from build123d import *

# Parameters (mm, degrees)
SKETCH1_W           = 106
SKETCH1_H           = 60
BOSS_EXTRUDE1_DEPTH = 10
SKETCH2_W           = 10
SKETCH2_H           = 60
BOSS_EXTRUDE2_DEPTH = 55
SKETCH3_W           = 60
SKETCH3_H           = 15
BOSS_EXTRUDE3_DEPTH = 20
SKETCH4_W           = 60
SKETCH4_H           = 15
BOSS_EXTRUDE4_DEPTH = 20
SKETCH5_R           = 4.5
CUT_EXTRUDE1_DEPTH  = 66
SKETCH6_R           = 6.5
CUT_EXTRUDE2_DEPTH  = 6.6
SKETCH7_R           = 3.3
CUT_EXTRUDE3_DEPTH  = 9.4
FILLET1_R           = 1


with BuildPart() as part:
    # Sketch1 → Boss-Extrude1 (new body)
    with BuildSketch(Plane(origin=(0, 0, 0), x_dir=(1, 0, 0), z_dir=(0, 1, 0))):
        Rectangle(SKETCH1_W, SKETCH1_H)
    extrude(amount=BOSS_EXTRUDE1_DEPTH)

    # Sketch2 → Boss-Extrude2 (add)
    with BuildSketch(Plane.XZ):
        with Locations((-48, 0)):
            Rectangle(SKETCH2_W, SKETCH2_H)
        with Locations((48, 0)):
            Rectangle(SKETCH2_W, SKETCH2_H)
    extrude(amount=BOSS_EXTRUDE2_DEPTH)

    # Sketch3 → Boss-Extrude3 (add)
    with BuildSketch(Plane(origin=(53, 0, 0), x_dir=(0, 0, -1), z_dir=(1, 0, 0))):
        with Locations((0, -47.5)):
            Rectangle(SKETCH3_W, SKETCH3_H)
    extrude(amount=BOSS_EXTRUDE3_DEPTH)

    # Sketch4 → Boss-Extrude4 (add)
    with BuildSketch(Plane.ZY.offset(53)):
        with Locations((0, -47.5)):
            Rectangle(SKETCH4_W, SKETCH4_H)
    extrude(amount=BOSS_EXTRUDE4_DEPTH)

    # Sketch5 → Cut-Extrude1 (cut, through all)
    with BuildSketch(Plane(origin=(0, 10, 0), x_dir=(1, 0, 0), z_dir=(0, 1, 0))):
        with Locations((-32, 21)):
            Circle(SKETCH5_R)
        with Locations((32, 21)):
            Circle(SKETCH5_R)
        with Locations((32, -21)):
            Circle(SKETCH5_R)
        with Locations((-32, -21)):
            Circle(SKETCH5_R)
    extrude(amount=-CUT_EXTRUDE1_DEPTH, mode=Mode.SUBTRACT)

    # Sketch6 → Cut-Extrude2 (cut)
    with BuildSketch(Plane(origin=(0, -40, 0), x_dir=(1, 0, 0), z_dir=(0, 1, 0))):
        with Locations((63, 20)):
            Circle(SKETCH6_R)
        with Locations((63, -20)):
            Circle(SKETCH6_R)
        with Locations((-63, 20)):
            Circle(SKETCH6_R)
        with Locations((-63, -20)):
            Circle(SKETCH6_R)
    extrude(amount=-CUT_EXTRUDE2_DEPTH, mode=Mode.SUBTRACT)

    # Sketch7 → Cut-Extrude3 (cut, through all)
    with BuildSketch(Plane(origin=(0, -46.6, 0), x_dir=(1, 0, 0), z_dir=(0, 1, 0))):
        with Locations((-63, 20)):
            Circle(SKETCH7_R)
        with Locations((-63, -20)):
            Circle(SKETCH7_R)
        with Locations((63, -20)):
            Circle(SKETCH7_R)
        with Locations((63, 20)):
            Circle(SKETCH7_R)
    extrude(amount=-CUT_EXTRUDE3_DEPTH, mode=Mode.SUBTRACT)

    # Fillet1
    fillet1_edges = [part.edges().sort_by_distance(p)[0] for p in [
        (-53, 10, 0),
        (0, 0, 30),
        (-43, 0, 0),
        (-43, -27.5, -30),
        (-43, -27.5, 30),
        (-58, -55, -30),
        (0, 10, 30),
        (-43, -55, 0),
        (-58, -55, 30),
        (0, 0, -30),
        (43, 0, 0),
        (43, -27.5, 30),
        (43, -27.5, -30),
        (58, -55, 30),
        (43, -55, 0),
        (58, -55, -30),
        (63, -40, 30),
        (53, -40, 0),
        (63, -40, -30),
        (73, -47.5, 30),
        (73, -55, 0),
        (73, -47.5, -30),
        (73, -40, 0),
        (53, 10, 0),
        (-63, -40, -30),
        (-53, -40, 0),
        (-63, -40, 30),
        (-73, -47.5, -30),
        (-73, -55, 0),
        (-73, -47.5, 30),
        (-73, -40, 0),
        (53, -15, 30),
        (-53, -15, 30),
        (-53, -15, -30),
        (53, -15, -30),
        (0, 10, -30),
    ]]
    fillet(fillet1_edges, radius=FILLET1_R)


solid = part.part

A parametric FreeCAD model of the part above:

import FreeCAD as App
import Part
import Sketcher

V = App.Vector


def edges_at(feature, points):
    """Names of the edges that pass closest to the given points."""
    edges = feature.Shape.Edges
    near = lambda p: min(range(len(edges)), key=lambda i: edges[i].distToShape(Part.Vertex(*p))[0])
    return sorted({f"Edge{near(p) + 1}" for p in points})

doc = App.newDocument("Part")
body = doc.addObject("PartDesign::Body", "Body")

# Sketch on XZ plane
sketch1 = body.newObject("Sketcher::SketchObject", "Sketch")
sketch1.AttachmentSupport = (doc.getObject("XZ_Plane"), [""])
sketch1.MapMode = "FlatFace"
sketch1.addGeometry(Part.LineSegment(V(-53, -30, 0), V(-53, 30, 0)), False)
sketch1.addGeometry(Part.LineSegment(V(-53, 30, 0), V(53, 30, 0)), False)
sketch1.addGeometry(Part.LineSegment(V(53, 30, 0), V(53, -30, 0)), False)
sketch1.addGeometry(Part.LineSegment(V(53, -30, 0), V(-53, -30, 0)), False)
sketch1.addConstraint(Sketcher.Constraint("Coincident", 0, 2, 1, 1))
sketch1.addConstraint(Sketcher.Constraint("Coincident", 1, 2, 2, 1))
sketch1.addConstraint(Sketcher.Constraint("Coincident", 2, 2, 3, 1))
sketch1.addConstraint(Sketcher.Constraint("Coincident", 3, 2, 0, 1))
sketch1.addConstraint(Sketcher.Constraint("Vertical", 0))
sketch1.addConstraint(Sketcher.Constraint("Horizontal", 1))
sketch1.addConstraint(Sketcher.Constraint("Vertical", 2))
sketch1.addConstraint(Sketcher.Constraint("Horizontal", 3))
sketch1.addConstraint(Sketcher.Constraint("Symmetric", 0, 2, 2, 2, -1, 1))
sketch1.addConstraint(Sketcher.Constraint("DistanceX", 1, 1, 1, 2, 106.0))
sketch1.addConstraint(Sketcher.Constraint("DistanceY", 0, 1, 0, 2, 60.0))
pad1 = body.newObject("PartDesign::Pad", "Pad")
pad1.Profile = sketch1
pad1.Length = 10
pad1.Reversed = True

# Sketch on XZ plane
sketch2 = body.newObject("Sketcher::SketchObject", "Sketch001")
sketch2.AttachmentSupport = (doc.getObject("XZ_Plane"), [""])
sketch2.MapMode = "FlatFace"
sketch2.addGeometry(Part.LineSegment(V(-53, 30, 0), V(-53, -30, 0)), False)
sketch2.addGeometry(Part.LineSegment(V(-53, -30, 0), V(-43, -30, 0)), False)
sketch2.addGeometry(Part.LineSegment(V(-43, -30, 0), V(-43, 30, 0)), False)
sketch2.addGeometry(Part.LineSegment(V(-43, 30, 0), V(-53, 30, 0)), False)
sketch2.addGeometry(Part.LineSegment(V(43, 30, 0), V(43, -30, 0)), False)
sketch2.addGeometry(Part.LineSegment(V(43, -30, 0), V(53, -30, 0)), False)
sketch2.addGeometry(Part.LineSegment(V(53, -30, 0), V(53, 30, 0)), False)
sketch2.addGeometry(Part.LineSegment(V(53, 30, 0), V(43, 30, 0)), False)
sketch2.addConstraint(Sketcher.Constraint("Coincident", 0, 2, 1, 1))
sketch2.addConstraint(Sketcher.Constraint("Coincident", 1, 2, 2, 1))
sketch2.addConstraint(Sketcher.Constraint("Coincident", 2, 2, 3, 1))
sketch2.addConstraint(Sketcher.Constraint("Coincident", 3, 2, 0, 1))
sketch2.addConstraint(Sketcher.Constraint("Coincident", 4, 2, 5, 1))
sketch2.addConstraint(Sketcher.Constraint("Coincident", 5, 2, 6, 1))
sketch2.addConstraint(Sketcher.Constraint("Coincident", 6, 2, 7, 1))
sketch2.addConstraint(Sketcher.Constraint("Coincident", 7, 2, 4, 1))
sketch2.addConstraint(Sketcher.Constraint("Vertical", 0))
sketch2.addConstraint(Sketcher.Constraint("Horizontal", 1))
sketch2.addConstraint(Sketcher.Constraint("Vertical", 2))
sketch2.addConstraint(Sketcher.Constraint("Horizontal", 3))
sketch2.addConstraint(Sketcher.Constraint("Vertical", 4))
sketch2.addConstraint(Sketcher.Constraint("Horizontal", 5))
sketch2.addConstraint(Sketcher.Constraint("Vertical", 6))
sketch2.addConstraint(Sketcher.Constraint("Horizontal", 7))
sketch2.addConstraint(Sketcher.Constraint("Symmetric", 2, 2, 4, 2, -1, 1))
sketch2.addConstraint(Sketcher.Constraint("Symmetric", 0, 2, 6, 2, -1, 1))
sketch2.addConstraint(Sketcher.Constraint("Horizontal", 1, 2, 4, 2))
sketch2.addConstraint(Sketcher.Constraint("DistanceX", 1, 1, 1, 2, 10.0))
sketch2.addConstraint(Sketcher.Constraint("DistanceY", 0, 2, 0, 1, 60.0))
sketch2.addConstraint(Sketcher.Constraint("DistanceX", 0, 2, -1, 1, 53.0))
pad2 = body.newObject("PartDesign::Pad", "Pad001")
pad2.Profile = sketch2
pad2.Length = 55

# Sketch on YZ plane
sketch3 = body.newObject("Sketcher::SketchObject", "Sketch002")
sketch3.AttachmentSupport = (doc.getObject("YZ_Plane"), [""])
sketch3.MapMode = "FlatFace"
sketch3.AttachmentOffset = App.Placement(V(0, 0, 53), App.Rotation())
sketch3.addGeometry(Part.LineSegment(V(-40, 30, 0), V(-55, 30, 0)), False)
sketch3.addGeometry(Part.LineSegment(V(-55, 30, 0), V(-55, -30, 0)), False)
sketch3.addGeometry(Part.LineSegment(V(-55, -30, 0), V(-40, -30, 0)), False)
sketch3.addGeometry(Part.LineSegment(V(-40, -30, 0), V(-40, 30, 0)), False)
sketch3.addConstraint(Sketcher.Constraint("Coincident", 0, 2, 1, 1))
sketch3.addConstraint(Sketcher.Constraint("Coincident", 1, 2, 2, 1))
sketch3.addConstraint(Sketcher.Constraint("Coincident", 2, 2, 3, 1))
sketch3.addConstraint(Sketcher.Constraint("Coincident", 3, 2, 0, 1))
sketch3.addConstraint(Sketcher.Constraint("Horizontal", 0))
sketch3.addConstraint(Sketcher.Constraint("Vertical", 1))
sketch3.addConstraint(Sketcher.Constraint("Horizontal", 2))
sketch3.addConstraint(Sketcher.Constraint("Vertical", 3))
sketch3.addConstraint(Sketcher.Constraint("DistanceX", 0, 2, 0, 1, 15.0))
sketch3.addConstraint(Sketcher.Constraint("DistanceY", 1, 2, 1, 1, 60.0))
sketch3.addConstraint(Sketcher.Constraint("DistanceX", 0, 2, -1, 1, 55.0))
sketch3.addConstraint(Sketcher.Constraint("DistanceY", -1, 1, 0, 2, 30.0))
pad3 = body.newObject("PartDesign::Pad", "Pad002")
pad3.Profile = sketch3
pad3.Length = 20

# Sketch on YZ plane
sketch4 = body.newObject("Sketcher::SketchObject", "Sketch003")
sketch4.AttachmentSupport = (doc.getObject("YZ_Plane"), [""])
sketch4.MapMode = "FlatFace"
sketch4.AttachmentOffset = App.Placement(V(0, 0, -53), App.Rotation())
sketch4.addGeometry(Part.LineSegment(V(-40, -30, 0), V(-55, -30, 0)), False)
sketch4.addGeometry(Part.LineSegment(V(-55, -30, 0), V(-55, 30, 0)), False)
sketch4.addGeometry(Part.LineSegment(V(-55, 30, 0), V(-40, 30, 0)), False)
sketch4.addGeometry(Part.LineSegment(V(-40, 30, 0), V(-40, -30, 0)), False)
sketch4.addConstraint(Sketcher.Constraint("Coincident", 0, 2, 1, 1))
sketch4.addConstraint(Sketcher.Constraint("Coincident", 1, 2, 2, 1))
sketch4.addConstraint(Sketcher.Constraint("Coincident", 2, 2, 3, 1))
sketch4.addConstraint(Sketcher.Constraint("Coincident", 3, 2, 0, 1))
sketch4.addConstraint(Sketcher.Constraint("Horizontal", 0))
sketch4.addConstraint(Sketcher.Constraint("Vertical", 1))
sketch4.addConstraint(Sketcher.Constraint("Horizontal", 2))
sketch4.addConstraint(Sketcher.Constraint("Vertical", 3))
sketch4.addConstraint(Sketcher.Constraint("DistanceX", 0, 2, 0, 1, 15.0))
sketch4.addConstraint(Sketcher.Constraint("DistanceY", 1, 1, 1, 2, 60.0))
sketch4.addConstraint(Sketcher.Constraint("DistanceX", 0, 2, -1, 1, 55.0))
sketch4.addConstraint(Sketcher.Constraint("DistanceY", 0, 2, -1, 1, 30.0))
pad4 = body.newObject("PartDesign::Pad", "Pad003")
pad4.Profile = sketch4
pad4.Length = 20
pad4.Reversed = True

# Sketch on XZ plane
sketch5 = body.newObject("Sketcher::SketchObject", "Sketch004")
sketch5.AttachmentSupport = (doc.getObject("XZ_Plane"), [""])
sketch5.MapMode = "FlatFace"
sketch5.AttachmentOffset = App.Placement(V(0, 0, -10), App.Rotation())
sketch5.addGeometry(Part.Circle(V(-32, -21, 0), V(0, 0, 1), 4.5), False)
sketch5.addGeometry(Part.Circle(V(32, -21, 0), V(0, 0, 1), 4.5), False)
sketch5.addGeometry(Part.Circle(V(32, 21, 0), V(0, 0, 1), 4.5), False)
sketch5.addGeometry(Part.Circle(V(-32, 21, 0), V(0, 0, 1), 4.5), False)
sketch5.addConstraint(Sketcher.Constraint("Equal", 0, 1))
sketch5.addConstraint(Sketcher.Constraint("Equal", 1, 2))
sketch5.addConstraint(Sketcher.Constraint("Equal", 2, 3))
sketch5.addConstraint(Sketcher.Constraint("Symmetric", 0, 3, 2, 3, -1, 1))
sketch5.addConstraint(Sketcher.Constraint("Symmetric", 1, 3, 3, 3, -1, 1))
sketch5.addConstraint(Sketcher.Constraint("Symmetric", 0, 3, 1, 3, -2))
sketch5.addConstraint(Sketcher.Constraint("Diameter", 0, 9.0))
sketch5.addConstraint(Sketcher.Constraint("DistanceX", 0, 3, -1, 1, 32.0))
sketch5.addConstraint(Sketcher.Constraint("DistanceY", 0, 3, -1, 1, 21.0))
pocket1 = body.newObject("PartDesign::Pocket", "Pocket")
pocket1.Profile = sketch5
pocket1.Type = "ThroughAll"
pocket1.Reversed = True

# Sketch on XZ plane
sketch6 = body.newObject("Sketcher::SketchObject", "Sketch005")
sketch6.AttachmentSupport = (doc.getObject("XZ_Plane"), [""])
sketch6.MapMode = "FlatFace"
sketch6.AttachmentOffset = App.Placement(V(0, 0, 40), App.Rotation())
sketch6.addGeometry(Part.Circle(V(63, -20, 0), V(0, 0, 1), 6), False)
sketch6.addGeometry(Part.Circle(V(63, 20, 0), V(0, 0, 1), 6), False)
sketch6.addGeometry(Part.Circle(V(-63, -20, 0), V(0, 0, 1), 6), False)
sketch6.addGeometry(Part.Circle(V(-63, 20, 0), V(0, 0, 1), 6), False)
sketch6.addConstraint(Sketcher.Constraint("Equal", 0, 1))
sketch6.addConstraint(Sketcher.Constraint("Equal", 1, 2))
sketch6.addConstraint(Sketcher.Constraint("Equal", 2, 3))
sketch6.addConstraint(Sketcher.Constraint("Symmetric", 1, 3, 2, 3, -1, 1))
sketch6.addConstraint(Sketcher.Constraint("Symmetric", 0, 3, 3, 3, -1, 1))
sketch6.addConstraint(Sketcher.Constraint("Symmetric", 0, 3, 2, 3, -2))
sketch6.addConstraint(Sketcher.Constraint("Diameter", 0, 13.0))
sketch6.addConstraint(Sketcher.Constraint("DistanceX", -1, 1, 0, 3, 63.0))
sketch6.addConstraint(Sketcher.Constraint("DistanceY", 0, 3, -1, 1, 20.0))
pocket2 = body.newObject("PartDesign::Pocket", "Pocket001")
pocket2.Profile = sketch6
pocket2.Length = 6.6
pocket2.Reversed = True

# Sketch on XZ plane
sketch7 = body.newObject("Sketcher::SketchObject", "Sketch006")
sketch7.AttachmentSupport = (doc.getObject("XZ_Plane"), [""])
sketch7.MapMode = "FlatFace"
sketch7.AttachmentOffset = App.Placement(V(0, 0, 46.6), App.Rotation())
sketch7.addGeometry(Part.Circle(V(-63, -20, 0), V(0, 0, 1), 3.3), False)
sketch7.addGeometry(Part.Circle(V(-63, 20, 0), V(0, 0, 1), 3.3), False)
sketch7.addGeometry(Part.Circle(V(63, 20, 0), V(0, 0, 1), 3.3), False)
sketch7.addGeometry(Part.Circle(V(63, -20, 0), V(0, 0, 1), 3.3), False)
sketch7.addConstraint(Sketcher.Constraint("Equal", 0, 1))
sketch7.addConstraint(Sketcher.Constraint("Equal", 1, 2))
sketch7.addConstraint(Sketcher.Constraint("Equal", 2, 3))
sketch7.addConstraint(Sketcher.Constraint("Symmetric", 0, 3, 2, 3, -1, 1))
sketch7.addConstraint(Sketcher.Constraint("Symmetric", 1, 3, 3, 3, -1, 1))
sketch7.addConstraint(Sketcher.Constraint("Symmetric", 1, 3, 2, 3, -2))
sketch7.addConstraint(Sketcher.Constraint("Diameter", 0, 6.6))
sketch7.addConstraint(Sketcher.Constraint("DistanceX", 0, 3, -1, 1, 63.0))
sketch7.addConstraint(Sketcher.Constraint("DistanceY", 0, 3, -1, 1, 20.0))
pocket3 = body.newObject("PartDesign::Pocket", "Pocket002")
pocket3.Profile = sketch7
pocket3.Type = "ThroughAll"
pocket3.Reversed = True
doc.recompute()

fillet = body.newObject("PartDesign::Fillet", "Fillet")
fillet.Base = (pocket3, edges_at(pocket3, [
    (-53, 10, 0),
    (0, 0, 30),
    (-43, 0, 0),
    (-43, -27.5, -30),
    (-43, -27.5, 30),
    (-58, -55, -30),
    (0, 10, 30),
    (-43, -55, 0),
    (-58, -55, 30),
    (0, 0, -30),
    (43, 0, 0),
    (43, -27.5, 30),
    (43, -27.5, -30),
    (58, -55, 30),
    (43, -55, 0),
    (58, -55, -30),
    (63, -40, 30),
    (53, -40, 0),
    (63, -40, -30),
    (73, -47.5, 30),
    (73, -55, 0),
    (73, -47.5, -30),
    (73, -40, 0),
    (53, 10, 0),
    (-63, -40, -30),
    (-53, -40, 0),
    (-63, -40, 30),
    (-73, -47.5, -30),
    (-73, -55, 0),
    (-73, -47.5, 30),
    (-73, -40, 0),
    (53, -15, 30),
    (-53, -15, 30),
    (-53, -15, -30),
    (53, -15, -30),
    (0, 10, -30),
]))
fillet.Radius = 1

doc.recompute()
